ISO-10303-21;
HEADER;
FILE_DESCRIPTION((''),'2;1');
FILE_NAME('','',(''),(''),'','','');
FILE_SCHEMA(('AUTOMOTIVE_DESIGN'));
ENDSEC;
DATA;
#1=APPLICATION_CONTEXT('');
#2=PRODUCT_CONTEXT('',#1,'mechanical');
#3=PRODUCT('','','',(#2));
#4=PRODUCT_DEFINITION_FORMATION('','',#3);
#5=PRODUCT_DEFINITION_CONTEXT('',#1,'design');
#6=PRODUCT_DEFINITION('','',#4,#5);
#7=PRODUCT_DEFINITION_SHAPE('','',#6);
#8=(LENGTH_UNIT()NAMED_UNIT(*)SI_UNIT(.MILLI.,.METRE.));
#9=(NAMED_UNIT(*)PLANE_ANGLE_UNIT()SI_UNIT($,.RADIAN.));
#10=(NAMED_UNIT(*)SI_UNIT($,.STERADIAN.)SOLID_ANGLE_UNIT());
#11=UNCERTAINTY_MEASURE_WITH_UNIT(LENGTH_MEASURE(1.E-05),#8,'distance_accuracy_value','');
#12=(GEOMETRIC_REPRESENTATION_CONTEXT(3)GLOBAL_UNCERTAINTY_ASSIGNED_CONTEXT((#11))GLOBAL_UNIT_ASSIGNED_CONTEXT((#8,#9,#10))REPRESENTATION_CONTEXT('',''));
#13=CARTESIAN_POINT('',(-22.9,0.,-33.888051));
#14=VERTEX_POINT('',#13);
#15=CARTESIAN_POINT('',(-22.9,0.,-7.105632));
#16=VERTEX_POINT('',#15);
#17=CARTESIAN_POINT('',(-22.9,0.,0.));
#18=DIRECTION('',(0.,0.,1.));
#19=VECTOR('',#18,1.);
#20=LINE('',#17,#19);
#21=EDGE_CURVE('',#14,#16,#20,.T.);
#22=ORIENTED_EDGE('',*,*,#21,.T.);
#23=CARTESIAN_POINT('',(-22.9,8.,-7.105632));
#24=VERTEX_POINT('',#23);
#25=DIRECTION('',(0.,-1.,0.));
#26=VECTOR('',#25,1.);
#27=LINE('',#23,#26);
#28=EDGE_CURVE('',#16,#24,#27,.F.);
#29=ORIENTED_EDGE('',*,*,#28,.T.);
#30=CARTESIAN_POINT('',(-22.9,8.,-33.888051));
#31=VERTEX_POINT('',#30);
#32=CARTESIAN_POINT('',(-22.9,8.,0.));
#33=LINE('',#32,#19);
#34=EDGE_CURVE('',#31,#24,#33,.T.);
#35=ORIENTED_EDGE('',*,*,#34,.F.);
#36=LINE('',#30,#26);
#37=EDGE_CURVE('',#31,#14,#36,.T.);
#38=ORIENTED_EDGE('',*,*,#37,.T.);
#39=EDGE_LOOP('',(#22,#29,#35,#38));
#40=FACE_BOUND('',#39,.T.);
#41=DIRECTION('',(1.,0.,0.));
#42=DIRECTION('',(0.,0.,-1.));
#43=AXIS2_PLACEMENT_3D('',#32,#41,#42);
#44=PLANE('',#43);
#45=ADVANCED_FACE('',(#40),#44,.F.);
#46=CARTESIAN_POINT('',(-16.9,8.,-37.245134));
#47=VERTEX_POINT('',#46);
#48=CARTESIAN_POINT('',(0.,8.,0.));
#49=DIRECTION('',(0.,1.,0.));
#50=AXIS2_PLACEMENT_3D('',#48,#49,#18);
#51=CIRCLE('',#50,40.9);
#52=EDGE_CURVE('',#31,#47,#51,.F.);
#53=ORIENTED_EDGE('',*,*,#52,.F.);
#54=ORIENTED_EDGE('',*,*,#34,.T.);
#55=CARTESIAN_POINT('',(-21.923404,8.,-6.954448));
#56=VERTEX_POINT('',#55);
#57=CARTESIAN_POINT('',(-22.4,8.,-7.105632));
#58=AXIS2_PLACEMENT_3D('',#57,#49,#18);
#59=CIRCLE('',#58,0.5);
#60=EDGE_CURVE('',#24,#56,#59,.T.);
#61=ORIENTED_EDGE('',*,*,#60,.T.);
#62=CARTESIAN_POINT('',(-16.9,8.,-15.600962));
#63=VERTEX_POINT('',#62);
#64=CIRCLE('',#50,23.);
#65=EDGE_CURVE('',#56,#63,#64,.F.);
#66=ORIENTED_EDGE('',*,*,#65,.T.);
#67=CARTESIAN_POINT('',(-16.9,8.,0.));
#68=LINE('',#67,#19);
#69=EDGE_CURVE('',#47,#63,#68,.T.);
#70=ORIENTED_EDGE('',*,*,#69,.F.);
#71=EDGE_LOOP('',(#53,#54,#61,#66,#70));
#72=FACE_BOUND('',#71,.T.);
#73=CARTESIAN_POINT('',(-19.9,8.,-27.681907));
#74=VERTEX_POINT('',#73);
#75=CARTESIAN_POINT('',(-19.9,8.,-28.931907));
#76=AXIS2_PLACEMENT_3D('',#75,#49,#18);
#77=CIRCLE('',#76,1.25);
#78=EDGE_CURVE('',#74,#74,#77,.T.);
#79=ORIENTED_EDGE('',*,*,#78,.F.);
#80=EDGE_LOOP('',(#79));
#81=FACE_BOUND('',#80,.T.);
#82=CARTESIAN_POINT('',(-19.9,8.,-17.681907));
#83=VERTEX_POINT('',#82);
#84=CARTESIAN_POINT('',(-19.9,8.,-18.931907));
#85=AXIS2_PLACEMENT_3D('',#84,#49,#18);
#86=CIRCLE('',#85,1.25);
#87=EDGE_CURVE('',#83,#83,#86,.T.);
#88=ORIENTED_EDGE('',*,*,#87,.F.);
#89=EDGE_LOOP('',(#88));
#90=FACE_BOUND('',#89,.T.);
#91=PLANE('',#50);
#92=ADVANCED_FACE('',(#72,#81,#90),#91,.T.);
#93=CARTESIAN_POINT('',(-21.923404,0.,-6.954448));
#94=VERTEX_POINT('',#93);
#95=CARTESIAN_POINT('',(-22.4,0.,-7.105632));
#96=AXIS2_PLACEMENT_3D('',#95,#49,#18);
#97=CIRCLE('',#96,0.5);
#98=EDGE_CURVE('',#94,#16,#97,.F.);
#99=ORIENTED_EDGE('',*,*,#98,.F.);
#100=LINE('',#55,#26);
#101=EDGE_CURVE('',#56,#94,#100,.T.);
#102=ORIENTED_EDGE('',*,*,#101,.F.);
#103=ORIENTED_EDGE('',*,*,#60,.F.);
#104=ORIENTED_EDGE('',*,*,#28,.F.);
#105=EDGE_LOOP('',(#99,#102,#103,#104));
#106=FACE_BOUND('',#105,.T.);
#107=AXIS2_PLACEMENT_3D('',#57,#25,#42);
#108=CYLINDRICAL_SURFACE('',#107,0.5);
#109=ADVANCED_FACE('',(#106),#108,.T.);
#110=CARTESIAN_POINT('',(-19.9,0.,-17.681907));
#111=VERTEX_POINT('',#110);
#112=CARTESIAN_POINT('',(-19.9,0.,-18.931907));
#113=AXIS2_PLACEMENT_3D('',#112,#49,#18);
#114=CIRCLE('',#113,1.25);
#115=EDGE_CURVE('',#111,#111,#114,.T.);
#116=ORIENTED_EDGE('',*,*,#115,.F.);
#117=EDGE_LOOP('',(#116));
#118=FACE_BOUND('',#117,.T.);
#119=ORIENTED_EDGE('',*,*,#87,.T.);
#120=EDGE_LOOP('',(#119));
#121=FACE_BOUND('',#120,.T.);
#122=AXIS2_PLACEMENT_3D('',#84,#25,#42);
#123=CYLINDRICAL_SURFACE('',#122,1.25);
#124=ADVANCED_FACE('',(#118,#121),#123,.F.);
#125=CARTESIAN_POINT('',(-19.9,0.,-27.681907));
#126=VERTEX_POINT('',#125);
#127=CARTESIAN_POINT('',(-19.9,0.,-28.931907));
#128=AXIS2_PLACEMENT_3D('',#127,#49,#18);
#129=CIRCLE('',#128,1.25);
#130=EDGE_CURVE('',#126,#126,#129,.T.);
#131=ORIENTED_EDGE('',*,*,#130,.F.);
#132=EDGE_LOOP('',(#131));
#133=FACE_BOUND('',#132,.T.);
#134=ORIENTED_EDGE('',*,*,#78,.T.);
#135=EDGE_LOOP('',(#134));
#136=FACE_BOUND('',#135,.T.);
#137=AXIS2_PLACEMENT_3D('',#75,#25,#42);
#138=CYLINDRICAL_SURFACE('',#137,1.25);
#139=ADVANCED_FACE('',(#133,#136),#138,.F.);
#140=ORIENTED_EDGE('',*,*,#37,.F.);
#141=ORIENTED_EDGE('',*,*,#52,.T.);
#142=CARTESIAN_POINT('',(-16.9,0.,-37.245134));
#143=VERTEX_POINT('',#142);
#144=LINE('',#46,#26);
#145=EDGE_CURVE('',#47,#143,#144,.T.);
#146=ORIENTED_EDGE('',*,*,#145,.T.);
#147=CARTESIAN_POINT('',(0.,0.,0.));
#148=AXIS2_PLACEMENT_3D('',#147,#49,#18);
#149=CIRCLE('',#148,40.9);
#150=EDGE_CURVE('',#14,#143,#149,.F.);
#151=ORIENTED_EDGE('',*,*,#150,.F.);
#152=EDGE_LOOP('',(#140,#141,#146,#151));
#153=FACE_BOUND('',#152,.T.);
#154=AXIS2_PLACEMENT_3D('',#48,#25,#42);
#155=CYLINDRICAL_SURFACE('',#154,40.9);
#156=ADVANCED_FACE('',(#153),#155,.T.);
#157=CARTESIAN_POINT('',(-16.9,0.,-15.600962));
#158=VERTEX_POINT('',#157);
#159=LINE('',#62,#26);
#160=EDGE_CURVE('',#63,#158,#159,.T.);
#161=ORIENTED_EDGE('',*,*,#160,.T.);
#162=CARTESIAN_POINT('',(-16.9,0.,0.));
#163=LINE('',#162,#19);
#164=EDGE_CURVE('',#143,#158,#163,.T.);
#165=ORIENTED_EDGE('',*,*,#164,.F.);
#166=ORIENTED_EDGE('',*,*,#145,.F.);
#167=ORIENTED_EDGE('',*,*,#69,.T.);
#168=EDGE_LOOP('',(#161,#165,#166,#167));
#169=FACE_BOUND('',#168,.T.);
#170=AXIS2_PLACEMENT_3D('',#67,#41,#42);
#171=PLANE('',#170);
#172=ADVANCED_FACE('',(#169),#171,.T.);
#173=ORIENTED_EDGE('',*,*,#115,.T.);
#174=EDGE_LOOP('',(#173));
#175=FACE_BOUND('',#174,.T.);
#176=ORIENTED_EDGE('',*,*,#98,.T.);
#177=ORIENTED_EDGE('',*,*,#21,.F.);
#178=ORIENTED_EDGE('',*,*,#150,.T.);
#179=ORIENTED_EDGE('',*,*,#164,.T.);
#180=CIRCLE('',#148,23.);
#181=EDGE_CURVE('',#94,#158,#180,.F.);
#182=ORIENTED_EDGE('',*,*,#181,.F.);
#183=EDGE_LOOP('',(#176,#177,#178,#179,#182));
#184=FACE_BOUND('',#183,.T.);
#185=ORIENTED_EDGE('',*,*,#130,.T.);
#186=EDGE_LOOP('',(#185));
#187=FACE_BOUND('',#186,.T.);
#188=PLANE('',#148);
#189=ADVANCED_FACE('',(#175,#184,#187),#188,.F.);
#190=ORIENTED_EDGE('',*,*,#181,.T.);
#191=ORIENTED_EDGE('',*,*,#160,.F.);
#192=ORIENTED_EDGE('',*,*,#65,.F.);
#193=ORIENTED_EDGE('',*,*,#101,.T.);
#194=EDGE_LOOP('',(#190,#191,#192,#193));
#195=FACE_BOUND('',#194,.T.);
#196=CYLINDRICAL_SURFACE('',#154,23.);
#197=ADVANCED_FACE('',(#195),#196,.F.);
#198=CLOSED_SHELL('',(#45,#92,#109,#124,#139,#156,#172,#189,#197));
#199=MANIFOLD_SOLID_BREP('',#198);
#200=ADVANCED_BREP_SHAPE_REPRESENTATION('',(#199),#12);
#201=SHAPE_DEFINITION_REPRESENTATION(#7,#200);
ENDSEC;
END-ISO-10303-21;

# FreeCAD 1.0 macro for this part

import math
import FreeCAD as App
import Part
import Sketcher

V = App.Vector


def edges_at(feature, points):
    """Names of the edges that pass closest to the given points."""
    edges = feature.Shape.Edges
    near = lambda p: min(range(len(edges)), key=lambda i: edges[i].distToShape(Part.Vertex(*p))[0])
    return sorted({f"Edge{near(p) + 1}" for p in points})

doc = App.newDocument("Part")
body = doc.addObject("PartDesign::Body", "Body")

# Sketch on XZ plane
sketch1 = doc.addObject("Sketcher::SketchObject", "Sketch")
body.addObject(sketch1)
sketch1.AttachmentSupport = (doc.XZ_Plane, [""])
sketch1.MapMode = "FlatFace"
sketch1.addGeometry([
    Part.LineSegment(V(-22.9, -33.9, 0), V(-22.9, -2.1, 0)),  # 0
    Part.ArcOfCircle(Part.Circle(V(0, 0, 0), V(0, 0, 1), 23), math.radians(-175), math.radians(-137)),  # 1
    Part.LineSegment(V(-16.9, -15.6, 0), V(-16.9, -37.2, 0)),  # 2
    Part.ArcOfCircle(Part.Circle(V(0, 0, 0), V(0, 0, 1), 40.9), math.radians(-124.05), math.radians(-114.41)),  # 3
    Part.Circle(V(-19.9, -18.9, 0), V(0, 0, 1), 1.2),  # 4
    Part.Circle(V(-19.9, -28.9, 0), V(0, 0, 1), 1.2),  # 5
], False)
sketch1.addConstraint([
    Sketcher.Constraint("Coincident", 0, 2, 1, 1),
    Sketcher.Constraint("Coincident", 1, 2, 2, 1),
    Sketcher.Constraint("Coincident", 2, 2, 3, 2),
    Sketcher.Constraint("Coincident", 3, 1, 0, 1),
    Sketcher.Constraint("Vertical", 0),
    Sketcher.Constraint("Vertical", 2),
    Sketcher.Constraint("Coincident", 1, 3, -1, 1),
    Sketcher.Constraint("Coincident", 3, 3, -1, 1),
    Sketcher.Constraint("Equal", 4, 5),
    Sketcher.Constraint("Vertical", 4, 3, 5, 3),
    Sketcher.Constraint("Radius", 1, 23.0),
    Sketcher.Constraint("Diameter", 4, 2.5),
    Sketcher.Constraint("Radius", 3, 40.9),
    Sketcher.Constraint("DistanceY", 5, 3, 4, 3, 10.0),
    Sketcher.Constraint("DistanceX", 0, 2, 4, 3, 3.0),
    Sketcher.Constraint("DistanceX", 4, 3, 1, 2, 3.0),
    Sketcher.Constraint("DistanceX", 4, 3, -1, 1, 19.9),
    Sketcher.Constraint("DistanceY", 4, 3, 0, 2, 16.789479),
])
pad1 = doc.addObject("PartDesign::Pad", "Pad")
body.addObject(pad1)
pad1.Profile = sketch1
pad1.Length = 8
pad1.Reversed = True
doc.recompute()

fillet = doc.addObject("PartDesign::Fillet", "Fillet")
body.addObject(fillet)
fillet.Base = (pad1, edges_at(pad1, [(-22.9, 4, -2.142)]))
fillet.Radius = 0.5

doc.recompute()
